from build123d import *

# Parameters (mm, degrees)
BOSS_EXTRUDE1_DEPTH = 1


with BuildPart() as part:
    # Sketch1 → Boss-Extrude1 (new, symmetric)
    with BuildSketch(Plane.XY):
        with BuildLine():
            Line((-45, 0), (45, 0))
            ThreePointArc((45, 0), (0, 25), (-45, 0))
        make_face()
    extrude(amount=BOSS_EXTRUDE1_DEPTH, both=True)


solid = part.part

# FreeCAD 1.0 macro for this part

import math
import FreeCAD as App
import Part
import Sketcher

doc = App.newDocument("Part")
body = doc.addObject("PartDesign::Body", "Body")

sketch1 = body.newObject("Sketcher::SketchObject", "Sketch")
sketch1.AttachmentSupport = (doc.getObject("XY_Plane"), [""])
sketch1.MapMode = "FlatFace"
sketch1.addGeometry([
    Part.LineSegment(App.Vector(-45, 0, 0), App.Vector(45, 0, 0)),
    Part.ArcOfCircle(Part.Circle(App.Vector(0, -28, 0), App.Vector(0, 0, 1), 53), math.radians(31.890792), math.radians(148.109208)),
], False)
sketch1.addConstraint([
    Sketcher.Constraint("Coincident", 0, 1, 1, 2),
    Sketcher.Constraint("Coincident", 1, 1, 0, 2),
    Sketcher.Constraint("Horizontal", 0),
    Sketcher.Constraint("Symmetric", 0, 1, 1, 1, -1, 1),
    Sketcher.Constraint("Radius", 1, 53.0),
    Sketcher.Constraint("DistanceX", 0, 1, 0, 2, 90.0),
])
pad1 = body.newObject("PartDesign::Pad", "Pad")
pad1.Profile = sketch1
pad1.Length = 2
pad1.Midplane = True

doc.recompute()
